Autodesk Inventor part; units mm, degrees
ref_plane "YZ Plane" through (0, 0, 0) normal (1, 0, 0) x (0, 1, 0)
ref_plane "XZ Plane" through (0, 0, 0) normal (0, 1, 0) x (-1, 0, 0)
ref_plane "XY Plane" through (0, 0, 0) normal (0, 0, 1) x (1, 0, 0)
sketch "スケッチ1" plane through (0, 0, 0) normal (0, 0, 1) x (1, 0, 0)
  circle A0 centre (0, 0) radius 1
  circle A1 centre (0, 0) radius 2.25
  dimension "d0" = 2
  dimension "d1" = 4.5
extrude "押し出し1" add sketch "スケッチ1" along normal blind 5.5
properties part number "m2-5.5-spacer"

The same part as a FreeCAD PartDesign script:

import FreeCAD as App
import Part
import Sketcher
Q = App.Units.Quantity

doc = App.newDocument("Part")
params = doc.addObject("Spreadsheet::Sheet", "Params")
for row, (alias, value) in enumerate([
    ("sketch1_diameter", "2 mm"),
    ("sketch1_diameter2", "4.5 mm"),
    ("pad1_length", "5.5 mm"),
], start=1):
    params.set(f"A{row}", alias)
    params.set(f"B{row}", "=" + value)
    params.setAlias(f"B{row}", alias)

body = doc.addObject("PartDesign::Body", "Body")

sketch1 = body.newObject("Sketcher::SketchObject", "Sketch")
sketch1.AttachmentSupport = (doc.getObject("XY_Plane"), [""])
sketch1.MapMode = "FlatFace"
sketch1.addGeometry(Part.Circle(App.Vector(0, 0, 0), App.Vector(0, 0, 1), 2.25), False)
sketch1.addGeometry(Part.Circle(App.Vector(0, 0, 0), App.Vector(0, 0, 1), 1), False)
sketch1.addConstraint(Sketcher.Constraint("Coincident", 0, 3, -1, 1))
sketch1.addConstraint(Sketcher.Constraint("Coincident", 1, 3, -1, 1))
sketch1.addConstraint(Sketcher.Constraint("Diameter", 1, Q("2 mm")))
sketch1.addConstraint(Sketcher.Constraint("Diameter", 0, Q("4.5 mm")))
sketch1.setExpression("Constraints[2]", "Params.sketch1_diameter")
sketch1.setExpression("Constraints[3]", "Params.sketch1_diameter2")
pad1 = body.newObject("PartDesign::Pad", "Pad")
pad1.Profile = sketch1
pad1.setExpression("Length", "Params.pad1_length")

doc.recompute()
